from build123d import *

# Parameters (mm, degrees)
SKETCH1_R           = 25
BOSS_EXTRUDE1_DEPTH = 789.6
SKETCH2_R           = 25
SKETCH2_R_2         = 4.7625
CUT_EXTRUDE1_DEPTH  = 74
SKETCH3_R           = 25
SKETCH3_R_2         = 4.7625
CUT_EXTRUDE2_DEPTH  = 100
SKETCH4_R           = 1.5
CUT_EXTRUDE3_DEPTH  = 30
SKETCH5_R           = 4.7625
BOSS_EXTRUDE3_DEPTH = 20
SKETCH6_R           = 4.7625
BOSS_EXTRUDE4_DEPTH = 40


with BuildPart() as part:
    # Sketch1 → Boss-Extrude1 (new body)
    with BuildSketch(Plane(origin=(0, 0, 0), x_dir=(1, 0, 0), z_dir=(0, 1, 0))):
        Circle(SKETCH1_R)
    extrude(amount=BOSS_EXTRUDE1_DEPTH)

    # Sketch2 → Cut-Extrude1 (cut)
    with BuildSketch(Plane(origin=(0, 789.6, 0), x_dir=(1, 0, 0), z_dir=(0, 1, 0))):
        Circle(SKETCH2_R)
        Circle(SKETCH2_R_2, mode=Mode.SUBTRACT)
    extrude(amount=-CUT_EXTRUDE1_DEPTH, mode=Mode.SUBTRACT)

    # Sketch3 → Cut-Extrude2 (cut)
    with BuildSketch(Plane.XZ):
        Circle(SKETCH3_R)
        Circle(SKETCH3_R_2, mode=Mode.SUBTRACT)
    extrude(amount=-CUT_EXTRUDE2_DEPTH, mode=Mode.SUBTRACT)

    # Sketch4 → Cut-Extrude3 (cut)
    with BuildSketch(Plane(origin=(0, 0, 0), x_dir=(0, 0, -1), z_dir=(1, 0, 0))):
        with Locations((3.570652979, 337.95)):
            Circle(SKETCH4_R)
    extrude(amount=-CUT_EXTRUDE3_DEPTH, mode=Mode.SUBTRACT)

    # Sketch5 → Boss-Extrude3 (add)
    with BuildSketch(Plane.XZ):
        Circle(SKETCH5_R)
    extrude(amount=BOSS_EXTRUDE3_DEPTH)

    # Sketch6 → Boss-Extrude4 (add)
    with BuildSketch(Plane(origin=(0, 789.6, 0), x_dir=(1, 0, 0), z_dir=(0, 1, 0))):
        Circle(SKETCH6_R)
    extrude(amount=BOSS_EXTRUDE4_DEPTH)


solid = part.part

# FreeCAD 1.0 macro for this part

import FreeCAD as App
import Part
import Sketcher
Q = App.Units.Quantity

doc = App.newDocument("Part")
params = doc.addObject("Spreadsheet::Sheet", "Params")
for row, (alias, value) in enumerate([
    ("sketch1_diameter", "50 mm"),
    ("pad1_length", "789.6 mm"),
    ("sketch2_diameter", "50 mm"),
    ("pocket1_length", "74 mm"),
    ("sketch3_diameter", "50 mm"),
    ("pocket2_length", "100 mm"),
    ("sketch4_diameter", "3 mm"),
    ("pocket3_length", "30 mm"),
    ("pad2_length", "20 mm"),
    ("pad3_length", "40 mm"),
], start=1):
    params.set(f"A{row}", alias)
    params.set(f"B{row}", "=" + value)
    params.setAlias(f"B{row}", alias)

body = doc.addObject("PartDesign::Body", "Body")

# Sketch on XZ plane
sketch1 = body.newObject("Sketcher::SketchObject", "Sketch")
sketch1.AttachmentSupport = (doc.getObject("XZ_Plane"), [""])
sketch1.MapMode = "FlatFace"
sketch1.addGeometry(Part.Circle(App.Vector(0, 0, 0), App.Vector(0, 0, 1), 25), False)
sketch1.addConstraint([
    Sketcher.Constraint("Coincident", 0, 3, -1, 1),
    Sketcher.Constraint("Diameter", 0, Q("50 mm")),
])
sketch1.setExpression("Constraints[1]", "Params.sketch1_diameter")
pad1 = body.newObject("PartDesign::Pad", "Pad")
pad1.Profile = sketch1
pad1.setExpression("Length", "Params.pad1_length")
pad1.Reversed = True

# Sketch on XZ plane
sketch2 = body.newObject("Sketcher::SketchObject", "Sketch001")
sketch2.AttachmentSupport = (doc.getObject("XZ_Plane"), [""])
sketch2.MapMode = "FlatFace"
sketch2.AttachmentOffset = App.Placement(App.Vector(0, 0, -789.6), App.Rotation())
sketch2.addGeometry([
    Part.Circle(App.Vector(0, 0, 0), App.Vector(0, 0, 1), 25),
    Part.Circle(App.Vector(0, 0, 0), App.Vector(0, 0, 1), 4.8),
], False)
sketch2.addConstraint([
    Sketcher.Constraint("Coincident", 0, 3, -1, 1),
    Sketcher.Constraint("Coincident", 1, 3, -1, 1),
    Sketcher.Constraint("Diameter", 0, Q("50 mm")),
    Sketcher.Constraint("Diameter", 1, Q("9.525 mm")),
])
sketch2.setExpression("Constraints[2]", "Params.sketch2_diameter")
pocket1 = body.newObject("PartDesign::Pocket", "Pocket")
pocket1.Profile = sketch2
pocket1.setExpression("Length", "Params.pocket1_length")
pocket1.Reversed = True

# Sketch on XZ plane
sketch3 = body.newObject("Sketcher::SketchObject", "Sketch002")
sketch3.AttachmentSupport = (doc.getObject("XZ_Plane"), [""])
sketch3.MapMode = "FlatFace"
sketch3.addGeometry([
    Part.Circle(App.Vector(0, 0, 0), App.Vector(0, 0, 1), 25),
    Part.Circle(App.Vector(0, 0, 0), App.Vector(0, 0, 1), 4.8),
], False)
sketch3.addConstraint([
    Sketcher.Constraint("Coincident", 0, 3, -1, 1),
    Sketcher.Constraint("Coincident", 1, 3, -1, 1),
    Sketcher.Constraint("Diameter", 0, Q("50 mm")),
    Sketcher.Constraint("Diameter", 1, Q("9.525 mm")),
])
sketch3.setExpression("Constraints[2]", "Params.sketch3_diameter")
pocket2 = body.newObject("PartDesign::Pocket", "Pocket001")
pocket2.Profile = sketch3
pocket2.setExpression("Length", "Params.pocket2_length")

# Sketch on YZ plane
sketch4 = body.newObject("Sketcher::SketchObject", "Sketch003")
sketch4.AttachmentSupport = (doc.getObject("YZ_Plane"), [""])
sketch4.MapMode = "FlatFace"
sketch4.addGeometry(Part.Circle(App.Vector(337.9, -3.6, 0), App.Vector(0, 0, 1), 1.5), False)
sketch4.addConstraint([
    Sketcher.Constraint("Diameter", 0, Q("3 mm")),
    Sketcher.Constraint("DistanceX", -1, 1, 0, 3, Q("337.95 mm")),
    Sketcher.Constraint("DistanceY", 0, 3, -1, 1, Q("3.570653 mm")),
])
sketch4.setExpression("Constraints[0]", "Params.sketch4_diameter")
pocket3 = body.newObject("PartDesign::Pocket", "Pocket002")
pocket3.Profile = sketch4
pocket3.setExpression("Length", "Params.pocket3_length")

# Sketch on XZ plane
sketch5 = body.newObject("Sketcher::SketchObject", "Sketch004")
sketch5.AttachmentSupport = (doc.getObject("XZ_Plane"), [""])
sketch5.MapMode = "FlatFace"
sketch5.addGeometry(Part.Circle(App.Vector(0, 0, 0), App.Vector(0, 0, 1), 4.8), False)
sketch5.addConstraint([
    Sketcher.Constraint("Coincident", 0, 3, -1, 1),
    Sketcher.Constraint("Diameter", 0, Q("9.525 mm")),
])
pad2 = body.newObject("PartDesign::Pad", "Pad001")
pad2.Profile = sketch5
pad2.setExpression("Length", "Params.pad2_length")

# Sketch on XZ plane
sketch6 = body.newObject("Sketcher::SketchObject", "Sketch005")
sketch6.AttachmentSupport = (doc.getObject("XZ_Plane"), [""])
sketch6.MapMode = "FlatFace"
sketch6.AttachmentOffset = App.Placement(App.Vector(0, 0, -789.6), App.Rotation())
sketch6.addGeometry(Part.Circle(App.Vector(0, 0, 0), App.Vector(0, 0, 1), 4.8), False)
sketch6.addConstraint([
    Sketcher.Constraint("Coincident", 0, 3, -1, 1),
    Sketcher.Constraint("Diameter", 0, Q("9.525 mm")),
])
pad3 = body.newObject("PartDesign::Pad", "Pad002")
pad3.Profile = sketch6
pad3.setExpression("Length", "Params.pad3_length")
pad3.Reversed = True

doc.recompute()
